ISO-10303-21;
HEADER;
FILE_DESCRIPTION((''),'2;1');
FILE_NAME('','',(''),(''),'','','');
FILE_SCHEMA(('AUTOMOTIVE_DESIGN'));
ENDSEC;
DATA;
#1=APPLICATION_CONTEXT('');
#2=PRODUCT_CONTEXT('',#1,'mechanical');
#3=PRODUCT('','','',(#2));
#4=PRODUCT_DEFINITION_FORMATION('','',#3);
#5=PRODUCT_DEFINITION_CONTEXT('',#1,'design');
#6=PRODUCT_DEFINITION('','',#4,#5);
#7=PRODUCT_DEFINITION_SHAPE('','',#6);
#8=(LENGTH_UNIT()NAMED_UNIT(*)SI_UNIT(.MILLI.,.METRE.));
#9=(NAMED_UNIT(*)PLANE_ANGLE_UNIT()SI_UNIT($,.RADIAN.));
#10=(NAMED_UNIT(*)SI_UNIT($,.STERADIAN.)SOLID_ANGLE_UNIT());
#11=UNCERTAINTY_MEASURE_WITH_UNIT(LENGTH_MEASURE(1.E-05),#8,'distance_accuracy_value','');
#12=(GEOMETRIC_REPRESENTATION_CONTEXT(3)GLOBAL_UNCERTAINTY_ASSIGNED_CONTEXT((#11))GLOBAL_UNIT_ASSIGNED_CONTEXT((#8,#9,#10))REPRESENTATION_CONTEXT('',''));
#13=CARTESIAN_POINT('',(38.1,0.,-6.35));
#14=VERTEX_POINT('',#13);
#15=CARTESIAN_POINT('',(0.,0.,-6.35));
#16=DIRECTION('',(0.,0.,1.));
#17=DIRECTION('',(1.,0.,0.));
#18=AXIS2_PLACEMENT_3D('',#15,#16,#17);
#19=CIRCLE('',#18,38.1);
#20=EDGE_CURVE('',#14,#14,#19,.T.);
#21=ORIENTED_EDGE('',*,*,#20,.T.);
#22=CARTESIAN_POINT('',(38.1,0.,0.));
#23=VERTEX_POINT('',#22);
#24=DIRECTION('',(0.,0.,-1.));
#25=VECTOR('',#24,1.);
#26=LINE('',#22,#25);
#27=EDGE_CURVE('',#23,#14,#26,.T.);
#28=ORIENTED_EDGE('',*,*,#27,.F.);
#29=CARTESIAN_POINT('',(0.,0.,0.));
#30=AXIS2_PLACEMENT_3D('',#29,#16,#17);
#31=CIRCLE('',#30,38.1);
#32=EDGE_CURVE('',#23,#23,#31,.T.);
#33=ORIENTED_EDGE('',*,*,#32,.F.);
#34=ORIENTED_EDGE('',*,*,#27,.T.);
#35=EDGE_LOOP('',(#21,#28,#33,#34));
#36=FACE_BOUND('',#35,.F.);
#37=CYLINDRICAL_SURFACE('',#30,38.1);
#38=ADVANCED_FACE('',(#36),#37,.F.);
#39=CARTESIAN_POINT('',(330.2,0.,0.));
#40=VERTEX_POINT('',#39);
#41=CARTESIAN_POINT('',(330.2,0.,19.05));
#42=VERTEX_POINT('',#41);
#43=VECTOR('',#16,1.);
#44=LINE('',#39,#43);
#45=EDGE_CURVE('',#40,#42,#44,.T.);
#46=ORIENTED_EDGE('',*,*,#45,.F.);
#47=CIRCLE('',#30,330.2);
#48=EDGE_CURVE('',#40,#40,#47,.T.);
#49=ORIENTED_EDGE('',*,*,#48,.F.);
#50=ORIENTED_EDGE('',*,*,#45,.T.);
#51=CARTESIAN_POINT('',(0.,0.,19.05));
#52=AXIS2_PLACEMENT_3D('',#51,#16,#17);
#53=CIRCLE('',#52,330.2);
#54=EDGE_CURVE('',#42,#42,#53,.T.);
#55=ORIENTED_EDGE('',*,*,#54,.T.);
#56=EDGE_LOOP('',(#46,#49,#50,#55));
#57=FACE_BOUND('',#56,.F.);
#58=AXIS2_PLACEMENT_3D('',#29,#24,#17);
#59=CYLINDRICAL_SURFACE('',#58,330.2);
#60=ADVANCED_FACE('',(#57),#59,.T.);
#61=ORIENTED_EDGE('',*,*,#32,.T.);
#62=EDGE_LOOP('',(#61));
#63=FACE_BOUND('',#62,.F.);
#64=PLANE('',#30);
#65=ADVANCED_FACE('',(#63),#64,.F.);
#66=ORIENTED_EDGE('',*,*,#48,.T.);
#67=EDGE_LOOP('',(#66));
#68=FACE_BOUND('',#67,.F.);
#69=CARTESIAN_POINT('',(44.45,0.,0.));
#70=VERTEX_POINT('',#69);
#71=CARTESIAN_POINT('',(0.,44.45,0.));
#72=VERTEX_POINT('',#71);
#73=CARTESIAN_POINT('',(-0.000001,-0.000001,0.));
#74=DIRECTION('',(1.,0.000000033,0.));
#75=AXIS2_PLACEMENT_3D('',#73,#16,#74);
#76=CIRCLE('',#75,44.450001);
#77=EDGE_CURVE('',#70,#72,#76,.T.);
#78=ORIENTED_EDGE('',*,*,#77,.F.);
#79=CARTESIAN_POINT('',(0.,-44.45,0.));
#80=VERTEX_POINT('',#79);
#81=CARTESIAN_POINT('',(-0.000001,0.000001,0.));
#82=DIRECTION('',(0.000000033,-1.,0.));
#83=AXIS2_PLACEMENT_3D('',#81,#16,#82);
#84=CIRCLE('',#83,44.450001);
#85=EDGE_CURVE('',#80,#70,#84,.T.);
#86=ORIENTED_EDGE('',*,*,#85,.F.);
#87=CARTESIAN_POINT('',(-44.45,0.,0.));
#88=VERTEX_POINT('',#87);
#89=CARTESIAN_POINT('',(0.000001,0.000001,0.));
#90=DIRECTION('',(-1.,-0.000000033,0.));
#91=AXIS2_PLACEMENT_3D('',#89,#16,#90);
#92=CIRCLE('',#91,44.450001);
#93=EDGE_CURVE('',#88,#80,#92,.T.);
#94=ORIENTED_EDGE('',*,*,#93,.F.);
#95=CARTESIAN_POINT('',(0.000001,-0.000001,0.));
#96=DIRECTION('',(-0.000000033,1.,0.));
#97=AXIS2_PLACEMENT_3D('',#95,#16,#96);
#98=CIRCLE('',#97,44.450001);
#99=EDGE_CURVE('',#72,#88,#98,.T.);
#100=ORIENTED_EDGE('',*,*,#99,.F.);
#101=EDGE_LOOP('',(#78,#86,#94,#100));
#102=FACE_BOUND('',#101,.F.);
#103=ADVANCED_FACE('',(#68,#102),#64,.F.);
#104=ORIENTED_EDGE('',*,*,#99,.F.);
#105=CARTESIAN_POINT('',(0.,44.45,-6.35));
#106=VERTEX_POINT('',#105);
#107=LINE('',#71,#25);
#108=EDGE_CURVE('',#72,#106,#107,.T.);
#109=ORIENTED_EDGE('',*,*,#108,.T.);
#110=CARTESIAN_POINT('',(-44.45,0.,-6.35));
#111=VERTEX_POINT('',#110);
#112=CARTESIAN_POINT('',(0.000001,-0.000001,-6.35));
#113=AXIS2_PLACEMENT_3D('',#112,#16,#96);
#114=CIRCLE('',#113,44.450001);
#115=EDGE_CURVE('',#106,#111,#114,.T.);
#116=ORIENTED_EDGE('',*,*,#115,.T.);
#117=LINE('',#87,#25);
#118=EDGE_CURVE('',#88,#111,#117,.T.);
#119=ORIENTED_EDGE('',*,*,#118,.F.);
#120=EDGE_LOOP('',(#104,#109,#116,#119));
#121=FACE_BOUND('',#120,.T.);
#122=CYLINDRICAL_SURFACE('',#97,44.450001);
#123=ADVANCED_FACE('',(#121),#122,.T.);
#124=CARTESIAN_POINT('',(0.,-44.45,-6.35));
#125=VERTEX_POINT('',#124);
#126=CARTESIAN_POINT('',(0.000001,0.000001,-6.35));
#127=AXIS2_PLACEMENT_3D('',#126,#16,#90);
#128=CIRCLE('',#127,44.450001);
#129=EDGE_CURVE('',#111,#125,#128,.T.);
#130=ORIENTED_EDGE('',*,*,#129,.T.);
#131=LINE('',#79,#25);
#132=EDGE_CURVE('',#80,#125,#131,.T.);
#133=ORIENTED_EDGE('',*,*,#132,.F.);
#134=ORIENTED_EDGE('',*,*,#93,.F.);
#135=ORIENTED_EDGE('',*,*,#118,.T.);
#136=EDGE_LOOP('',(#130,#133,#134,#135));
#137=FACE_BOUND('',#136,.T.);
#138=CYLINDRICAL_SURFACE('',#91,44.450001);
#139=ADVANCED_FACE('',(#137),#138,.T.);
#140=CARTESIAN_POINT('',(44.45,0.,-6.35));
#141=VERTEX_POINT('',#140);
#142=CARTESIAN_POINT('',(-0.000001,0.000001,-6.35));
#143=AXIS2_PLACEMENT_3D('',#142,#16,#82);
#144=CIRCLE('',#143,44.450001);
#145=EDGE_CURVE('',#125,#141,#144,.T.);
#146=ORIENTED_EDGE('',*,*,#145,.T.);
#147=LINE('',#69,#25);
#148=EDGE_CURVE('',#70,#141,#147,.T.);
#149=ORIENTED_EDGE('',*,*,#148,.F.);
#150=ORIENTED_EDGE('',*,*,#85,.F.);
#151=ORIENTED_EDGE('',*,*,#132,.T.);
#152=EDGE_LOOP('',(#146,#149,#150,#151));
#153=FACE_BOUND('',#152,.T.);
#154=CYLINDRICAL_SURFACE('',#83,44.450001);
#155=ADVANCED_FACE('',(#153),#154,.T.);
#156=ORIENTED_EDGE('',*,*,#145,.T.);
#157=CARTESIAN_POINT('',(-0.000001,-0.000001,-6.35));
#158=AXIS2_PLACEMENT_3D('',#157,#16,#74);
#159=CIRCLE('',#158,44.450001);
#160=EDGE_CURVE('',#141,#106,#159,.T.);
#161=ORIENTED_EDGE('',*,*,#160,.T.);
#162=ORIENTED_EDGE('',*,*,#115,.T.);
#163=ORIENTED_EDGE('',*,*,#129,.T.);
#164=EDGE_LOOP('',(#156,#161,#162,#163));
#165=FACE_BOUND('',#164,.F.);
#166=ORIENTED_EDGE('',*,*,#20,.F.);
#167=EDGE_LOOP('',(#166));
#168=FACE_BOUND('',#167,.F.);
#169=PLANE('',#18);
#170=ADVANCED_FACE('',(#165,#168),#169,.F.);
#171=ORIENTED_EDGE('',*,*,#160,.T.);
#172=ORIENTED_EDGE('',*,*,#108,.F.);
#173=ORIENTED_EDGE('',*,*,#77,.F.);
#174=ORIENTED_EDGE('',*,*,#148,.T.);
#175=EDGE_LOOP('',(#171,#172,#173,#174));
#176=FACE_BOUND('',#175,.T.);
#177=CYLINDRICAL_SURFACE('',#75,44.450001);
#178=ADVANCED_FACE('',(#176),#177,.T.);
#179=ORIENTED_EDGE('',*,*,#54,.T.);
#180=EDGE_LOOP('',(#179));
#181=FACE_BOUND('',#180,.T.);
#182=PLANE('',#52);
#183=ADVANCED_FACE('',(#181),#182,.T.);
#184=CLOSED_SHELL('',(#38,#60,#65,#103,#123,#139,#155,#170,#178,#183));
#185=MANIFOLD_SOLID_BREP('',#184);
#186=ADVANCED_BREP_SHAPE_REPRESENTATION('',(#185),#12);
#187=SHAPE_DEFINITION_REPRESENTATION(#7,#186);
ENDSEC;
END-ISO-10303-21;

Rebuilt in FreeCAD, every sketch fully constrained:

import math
import FreeCAD as App
import Part
import Sketcher
Q = App.Units.Quantity

doc = App.newDocument("Part")
body = doc.addObject("PartDesign::Body", "Body")

sketch1 = body.newObject("Sketcher::SketchObject", "Sketch")
sketch1.AttachmentSupport = (doc.getObject("XY_Plane"), [""])
sketch1.MapMode = "FlatFace"
sketch1.addGeometry(Part.Circle(App.Vector(0, 0, 0), App.Vector(0, 0, 1), 330), False)
sketch1.addConstraint(Sketcher.Constraint("Coincident", 0, 3, -1, 1))
sketch1.addConstraint(Sketcher.Constraint("Diameter", 0, Q("26 in")))
pad1 = body.newObject("PartDesign::Pad", "Pad")
pad1.Profile = sketch1
pad1.Length = Q("0.75 in")

sketch2 = body.newObject("Sketcher::SketchObject", "Sketch001")
sketch2.AttachmentSupport = (doc.getObject("XY_Plane"), [""])
sketch2.MapMode = "FlatFace"
sketch2.addGeometry(Part.ArcOfCircle(Part.Circle(App.Vector(0, 0, 0), App.Vector(0, 0, 1), 44), math.radians(-180), math.radians(-90)), False)
sketch2.addGeometry(Part.ArcOfCircle(Part.Circle(App.Vector(0, 0, 0), App.Vector(0, 0, 1), 44), math.radians(-90), math.radians(0)), False)
sketch2.addGeometry(Part.ArcOfCircle(Part.Circle(App.Vector(0, 0, 0), App.Vector(0, 0, 1), 44), math.radians(0), math.radians(90)), False)
sketch2.addGeometry(Part.ArcOfCircle(Part.Circle(App.Vector(0, 0, 0), App.Vector(0, 0, 1), 44), math.radians(90), math.radians(180)), False)
sketch2.addGeometry(Part.Circle(App.Vector(0, 0, 0), App.Vector(0, 0, 1), 38), False)
sketch2.addConstraint(Sketcher.Constraint("Tangent", 0, 2, 1, 1))
sketch2.addConstraint(Sketcher.Constraint("Tangent", 1, 2, 2, 1))
sketch2.addConstraint(Sketcher.Constraint("Tangent", 2, 2, 3, 1))
sketch2.addConstraint(Sketcher.Constraint("Tangent", 3, 2, 0, 1))
sketch2.addConstraint(Sketcher.Constraint("Coincident", 0, 3, -1, 1))
sketch2.addConstraint(Sketcher.Constraint("Coincident", 4, 3, -1, 1))
sketch2.addConstraint(Sketcher.Constraint("Equal", 0, 1))
sketch2.addConstraint(Sketcher.Constraint("PointOnObject", 0, 2, -2))
sketch2.addConstraint(Sketcher.Constraint("PointOnObject", 1, 2, -1))
sketch2.addConstraint(Sketcher.Constraint("PointOnObject", 2, 2, -2))
sketch2.addConstraint(Sketcher.Constraint("PointOnObject", 3, 2, -1))
sketch2.addConstraint(Sketcher.Constraint("Diameter", 4, Q("3 in")))
sketch2.addConstraint(Sketcher.Constraint("Radius", 0, Q("1.7500001 in")))
pad2 = body.newObject("PartDesign::Pad", "Pad001")
pad2.Profile = sketch2
pad2.Length = Q("0.25 in")
pad2.Reversed = True

doc.recompute()
